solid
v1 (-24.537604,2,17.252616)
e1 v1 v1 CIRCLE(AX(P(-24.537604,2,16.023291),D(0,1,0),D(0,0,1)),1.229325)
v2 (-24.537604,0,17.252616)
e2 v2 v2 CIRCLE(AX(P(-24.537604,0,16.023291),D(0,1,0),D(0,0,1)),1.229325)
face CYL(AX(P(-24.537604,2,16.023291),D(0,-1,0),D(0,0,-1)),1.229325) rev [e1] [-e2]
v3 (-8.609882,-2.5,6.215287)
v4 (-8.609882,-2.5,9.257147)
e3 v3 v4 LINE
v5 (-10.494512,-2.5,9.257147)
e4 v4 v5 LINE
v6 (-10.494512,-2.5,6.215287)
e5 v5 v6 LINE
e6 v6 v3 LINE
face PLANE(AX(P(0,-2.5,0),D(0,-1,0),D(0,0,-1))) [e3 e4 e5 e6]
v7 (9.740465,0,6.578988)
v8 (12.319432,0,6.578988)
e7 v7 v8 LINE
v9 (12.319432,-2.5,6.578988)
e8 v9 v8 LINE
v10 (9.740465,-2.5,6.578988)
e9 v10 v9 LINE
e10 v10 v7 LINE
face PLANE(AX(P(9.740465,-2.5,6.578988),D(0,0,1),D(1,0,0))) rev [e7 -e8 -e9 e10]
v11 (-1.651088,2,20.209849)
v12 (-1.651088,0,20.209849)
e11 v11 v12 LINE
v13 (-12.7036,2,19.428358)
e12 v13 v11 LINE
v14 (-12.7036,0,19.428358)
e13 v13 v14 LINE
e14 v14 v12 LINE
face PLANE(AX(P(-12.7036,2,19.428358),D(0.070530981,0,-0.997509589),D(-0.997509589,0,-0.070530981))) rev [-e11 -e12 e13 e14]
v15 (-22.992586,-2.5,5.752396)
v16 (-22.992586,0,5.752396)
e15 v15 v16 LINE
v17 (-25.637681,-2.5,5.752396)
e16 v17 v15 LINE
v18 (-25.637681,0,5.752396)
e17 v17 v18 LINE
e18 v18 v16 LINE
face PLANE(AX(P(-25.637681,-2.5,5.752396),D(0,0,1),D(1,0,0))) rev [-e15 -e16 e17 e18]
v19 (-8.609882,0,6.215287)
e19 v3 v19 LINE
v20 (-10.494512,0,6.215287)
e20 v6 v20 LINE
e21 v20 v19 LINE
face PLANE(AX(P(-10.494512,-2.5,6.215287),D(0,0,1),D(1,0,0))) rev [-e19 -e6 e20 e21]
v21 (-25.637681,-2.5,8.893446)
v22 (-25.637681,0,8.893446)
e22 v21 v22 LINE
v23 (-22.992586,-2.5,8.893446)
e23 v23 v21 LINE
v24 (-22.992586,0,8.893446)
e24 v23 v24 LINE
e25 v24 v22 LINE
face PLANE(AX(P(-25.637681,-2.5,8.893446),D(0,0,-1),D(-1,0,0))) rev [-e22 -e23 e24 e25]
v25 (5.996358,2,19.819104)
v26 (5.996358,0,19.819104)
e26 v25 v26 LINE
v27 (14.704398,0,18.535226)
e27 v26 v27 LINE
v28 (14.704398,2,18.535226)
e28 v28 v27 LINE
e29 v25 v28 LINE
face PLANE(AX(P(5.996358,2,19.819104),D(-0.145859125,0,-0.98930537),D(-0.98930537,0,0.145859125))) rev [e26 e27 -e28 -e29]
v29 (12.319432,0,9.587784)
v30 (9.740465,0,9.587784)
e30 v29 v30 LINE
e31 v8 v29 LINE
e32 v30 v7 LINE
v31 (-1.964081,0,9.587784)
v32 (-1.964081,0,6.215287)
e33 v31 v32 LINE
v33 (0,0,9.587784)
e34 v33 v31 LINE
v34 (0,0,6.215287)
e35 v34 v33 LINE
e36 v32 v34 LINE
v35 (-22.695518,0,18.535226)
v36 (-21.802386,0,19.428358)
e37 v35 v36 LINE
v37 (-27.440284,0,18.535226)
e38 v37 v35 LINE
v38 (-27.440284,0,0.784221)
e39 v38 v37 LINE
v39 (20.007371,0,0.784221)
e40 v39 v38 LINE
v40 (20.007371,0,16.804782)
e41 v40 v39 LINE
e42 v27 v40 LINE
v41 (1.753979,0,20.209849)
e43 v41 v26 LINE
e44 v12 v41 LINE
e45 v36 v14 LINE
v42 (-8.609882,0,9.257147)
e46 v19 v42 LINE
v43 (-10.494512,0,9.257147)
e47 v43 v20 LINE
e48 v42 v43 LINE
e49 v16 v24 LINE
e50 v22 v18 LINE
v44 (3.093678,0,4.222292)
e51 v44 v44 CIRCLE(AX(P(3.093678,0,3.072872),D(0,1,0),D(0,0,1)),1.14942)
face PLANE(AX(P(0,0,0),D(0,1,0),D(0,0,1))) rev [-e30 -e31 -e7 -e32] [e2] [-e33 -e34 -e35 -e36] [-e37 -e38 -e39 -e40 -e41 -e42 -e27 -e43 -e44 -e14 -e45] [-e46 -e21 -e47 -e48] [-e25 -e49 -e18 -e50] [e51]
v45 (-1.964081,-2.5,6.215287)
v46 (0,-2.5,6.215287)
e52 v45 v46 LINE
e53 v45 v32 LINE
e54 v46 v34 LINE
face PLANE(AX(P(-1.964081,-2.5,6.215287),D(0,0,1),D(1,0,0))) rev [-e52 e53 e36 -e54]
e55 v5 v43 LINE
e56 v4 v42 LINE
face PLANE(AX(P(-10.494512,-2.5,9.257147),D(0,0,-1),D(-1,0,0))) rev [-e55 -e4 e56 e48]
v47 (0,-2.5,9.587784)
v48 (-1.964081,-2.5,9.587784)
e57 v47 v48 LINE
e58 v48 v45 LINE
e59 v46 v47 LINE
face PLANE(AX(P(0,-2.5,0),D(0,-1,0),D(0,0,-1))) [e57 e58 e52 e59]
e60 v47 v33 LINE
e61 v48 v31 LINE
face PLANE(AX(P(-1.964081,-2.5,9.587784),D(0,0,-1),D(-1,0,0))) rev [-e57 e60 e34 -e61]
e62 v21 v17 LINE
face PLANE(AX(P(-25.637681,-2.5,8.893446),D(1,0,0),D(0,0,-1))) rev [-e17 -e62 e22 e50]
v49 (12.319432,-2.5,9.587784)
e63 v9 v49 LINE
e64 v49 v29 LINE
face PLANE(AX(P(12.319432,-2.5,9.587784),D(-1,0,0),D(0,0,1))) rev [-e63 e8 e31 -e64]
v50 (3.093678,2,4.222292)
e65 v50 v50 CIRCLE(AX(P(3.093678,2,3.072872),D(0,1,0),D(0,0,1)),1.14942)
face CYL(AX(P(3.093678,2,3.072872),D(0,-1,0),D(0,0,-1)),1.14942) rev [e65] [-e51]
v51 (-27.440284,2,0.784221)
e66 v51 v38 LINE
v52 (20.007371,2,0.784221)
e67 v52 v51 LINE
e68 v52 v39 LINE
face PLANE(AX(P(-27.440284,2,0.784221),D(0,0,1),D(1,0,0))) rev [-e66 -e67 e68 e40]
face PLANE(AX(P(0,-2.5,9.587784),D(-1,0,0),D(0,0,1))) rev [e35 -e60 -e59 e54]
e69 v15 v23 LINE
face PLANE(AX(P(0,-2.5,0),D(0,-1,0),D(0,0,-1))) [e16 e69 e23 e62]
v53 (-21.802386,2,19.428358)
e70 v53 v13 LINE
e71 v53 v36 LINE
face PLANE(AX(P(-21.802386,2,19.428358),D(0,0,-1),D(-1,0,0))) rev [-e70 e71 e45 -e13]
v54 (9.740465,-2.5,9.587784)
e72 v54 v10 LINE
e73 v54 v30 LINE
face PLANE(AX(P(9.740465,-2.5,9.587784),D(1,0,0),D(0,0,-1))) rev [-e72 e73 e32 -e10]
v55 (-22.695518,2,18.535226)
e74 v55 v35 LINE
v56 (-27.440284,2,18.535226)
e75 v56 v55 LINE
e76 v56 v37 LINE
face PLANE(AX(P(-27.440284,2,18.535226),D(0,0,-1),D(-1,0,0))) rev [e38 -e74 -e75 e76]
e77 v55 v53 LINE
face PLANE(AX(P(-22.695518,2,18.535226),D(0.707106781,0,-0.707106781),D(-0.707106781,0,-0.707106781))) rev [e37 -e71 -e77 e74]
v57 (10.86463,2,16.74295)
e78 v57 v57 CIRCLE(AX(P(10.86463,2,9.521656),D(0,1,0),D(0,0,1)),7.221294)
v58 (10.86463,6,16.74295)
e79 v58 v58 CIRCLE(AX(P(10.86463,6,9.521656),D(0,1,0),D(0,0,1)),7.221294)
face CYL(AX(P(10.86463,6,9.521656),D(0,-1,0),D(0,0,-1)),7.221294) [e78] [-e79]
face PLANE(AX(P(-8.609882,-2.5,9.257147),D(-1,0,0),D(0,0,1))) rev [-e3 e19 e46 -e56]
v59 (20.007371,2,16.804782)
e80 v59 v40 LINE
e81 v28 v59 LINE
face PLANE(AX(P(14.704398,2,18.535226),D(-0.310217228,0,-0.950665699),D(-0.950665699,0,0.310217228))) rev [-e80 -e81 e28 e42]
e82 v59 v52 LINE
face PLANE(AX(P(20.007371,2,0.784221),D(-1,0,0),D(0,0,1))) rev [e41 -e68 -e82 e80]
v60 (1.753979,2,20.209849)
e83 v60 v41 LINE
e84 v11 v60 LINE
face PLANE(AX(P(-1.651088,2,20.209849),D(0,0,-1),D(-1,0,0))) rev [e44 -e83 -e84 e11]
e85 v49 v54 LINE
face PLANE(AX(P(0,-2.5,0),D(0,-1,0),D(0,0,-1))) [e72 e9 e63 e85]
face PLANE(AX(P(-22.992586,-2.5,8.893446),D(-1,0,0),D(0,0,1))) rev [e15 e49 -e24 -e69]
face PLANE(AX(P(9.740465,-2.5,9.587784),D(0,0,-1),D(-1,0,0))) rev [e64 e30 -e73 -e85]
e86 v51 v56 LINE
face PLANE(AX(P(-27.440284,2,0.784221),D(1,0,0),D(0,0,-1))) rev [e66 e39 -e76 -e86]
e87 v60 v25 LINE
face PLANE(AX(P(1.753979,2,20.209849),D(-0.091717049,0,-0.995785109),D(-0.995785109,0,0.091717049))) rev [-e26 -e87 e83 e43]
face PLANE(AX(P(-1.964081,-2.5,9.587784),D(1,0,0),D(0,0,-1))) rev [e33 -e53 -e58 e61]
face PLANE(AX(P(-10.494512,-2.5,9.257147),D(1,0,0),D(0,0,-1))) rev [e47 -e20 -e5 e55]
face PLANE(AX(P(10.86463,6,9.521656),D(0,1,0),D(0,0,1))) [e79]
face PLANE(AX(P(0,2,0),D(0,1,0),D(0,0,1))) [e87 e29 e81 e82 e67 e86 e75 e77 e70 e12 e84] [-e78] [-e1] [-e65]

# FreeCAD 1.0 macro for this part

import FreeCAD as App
import Part
import Sketcher
Q = App.Units.Quantity

doc = App.newDocument("Part")
body = doc.addObject("PartDesign::Body", "Body")

# Sketch on XZ plane
sketch1 = body.newObject("Sketcher::SketchObject", "Sketch")
sketch1.AttachmentSupport = (doc.getObject("XZ_Plane"), [""])
sketch1.MapMode = "FlatFace"
sketch1.addGeometry([
    Part.LineSegment(App.Vector(20, 0.8, 0), App.Vector(-27.4, 0.8, 0)),  # 0
    Part.LineSegment(App.Vector(-27.4, 0.8, 0), App.Vector(-27.4, 18.5, 0)),  # 1
    Part.LineSegment(App.Vector(-27.4, 18.5, 0), App.Vector(-22.7, 18.5, 0)),  # 2
    Part.LineSegment(App.Vector(-22.7, 18.5, 0), App.Vector(-21.8, 19.4, 0)),  # 3
    Part.LineSegment(App.Vector(-21.8, 19.4, 0), App.Vector(-12.7, 19.4, 0)),  # 4
    Part.LineSegment(App.Vector(-12.7, 19.4, 0), App.Vector(-1.7, 20.2, 0)),  # 5
    Part.LineSegment(App.Vector(-1.7, 20.2, 0), App.Vector(1.8, 20.2, 0)),  # 6
    Part.LineSegment(App.Vector(1.8, 20.2, 0), App.Vector(6, 19.8, 0)),  # 7
    Part.LineSegment(App.Vector(6, 19.8, 0), App.Vector(14.7, 18.5, 0)),  # 8
    Part.LineSegment(App.Vector(14.7, 18.5, 0), App.Vector(20, 16.8, 0)),  # 9
    Part.LineSegment(App.Vector(20, 16.8, 0), App.Vector(20, 0.8, 0)),  # 10
    Part.Circle(App.Vector(-24.5, 16, 0), App.Vector(0, 0, 1), 1.2),  # 11
    Part.Circle(App.Vector(3.1, 3.1, 0), App.Vector(0, 0, 1), 1.1),  # 12
], False)
sketch1.addConstraint([
    Sketcher.Constraint("Coincident", 0, 2, 1, 1),
    Sketcher.Constraint("Coincident", 1, 2, 2, 1),
    Sketcher.Constraint("Coincident", 2, 2, 3, 1),
    Sketcher.Constraint("Coincident", 3, 2, 4, 1),
    Sketcher.Constraint("Coincident", 4, 2, 5, 1),
    Sketcher.Constraint("Coincident", 5, 2, 6, 1),
    Sketcher.Constraint("Coincident", 6, 2, 7, 1),
    Sketcher.Constraint("Coincident", 7, 2, 8, 1),
    Sketcher.Constraint("Coincident", 8, 2, 9, 1),
    Sketcher.Constraint("Coincident", 9, 2, 10, 1),
    Sketcher.Constraint("Coincident", 10, 2, 0, 1),
    Sketcher.Constraint("Horizontal", 0),
    Sketcher.Constraint("Vertical", 1),
    Sketcher.Constraint("Horizontal", 2),
    Sketcher.Constraint("Horizontal", 4),
    Sketcher.Constraint("Horizontal", 6),
    Sketcher.Constraint("Vertical", 10),
    Sketcher.Constraint("Horizontal", 2, 2, 8, 2),
    Sketcher.Constraint("Angle", 3, Q("45 deg")),
    Sketcher.Constraint("Diameter", 11, Q("2.45865 mm")),
    Sketcher.Constraint("Diameter", 12, Q("2.29884 mm")),
    Sketcher.Constraint("DistanceX", 4, 2, 8, 2, Q("27.407999 mm")),
    Sketcher.Constraint("DistanceY", 10, 2, 10, 1, Q("16.020561 mm")),
    Sketcher.Constraint("DistanceX", 4, 2, -1, 1, Q("12.7036 mm")),
    Sketcher.Constraint("DistanceX", 3, 2, 5, 2, Q("20.151298 mm")),
    Sketcher.Constraint("DistanceX", 6, 2, 12, 3, Q("1.339699 mm")),
    Sketcher.Constraint("Distance", 3, Q("1.26308 mm")),
    Sketcher.Constraint("Distance", 9, Q("5.578168 mm")),
    Sketcher.Constraint("DistanceX", 0, 2, 0, 1, Q("47.447655 mm")),
    Sketcher.Constraint("DistanceX", 2, 1, 2, 2, Q("4.744766 mm")),
    Sketcher.Constraint("DistanceX", 4, 1, 4, 2, Q("9.098786 mm")),
    Sketcher.Constraint("DistanceX", 6, 1, 6, 2, Q("3.405067 mm")),
    Sketcher.Constraint("DistanceY", -1, 1, 11, 3, Q("16.023291 mm")),
    Sketcher.Constraint("DistanceY", -1, 1, 0, 2, Q("0.784221 mm")),
    Sketcher.Constraint("DistanceY", -1, 1, 5, 2, Q("20.209849 mm")),
    Sketcher.Constraint("DistanceX", 11, 3, 12, 3, Q("27.631282 mm")),
    Sketcher.Constraint("DistanceY", 12, 3, 11, 3, Q("12.950419 mm")),
    Sketcher.Constraint("DistanceX", 6, 2, 7, 2, Q("4.242379 mm")),
    Sketcher.Constraint("DistanceY", 12, 3, 7, 2, Q("16.746231 mm")),
])
pad1 = body.newObject("PartDesign::Pad", "Pad")
pad1.Profile = sketch1
pad1.Length = 2
pad1.Reversed = True

# Sketch on XZ plane
sketch2 = body.newObject("Sketcher::SketchObject", "Sketch001")
sketch2.AttachmentSupport = (doc.getObject("XZ_Plane"), [""])
sketch2.MapMode = "FlatFace"
sketch2.AttachmentOffset = App.Placement(App.Vector(0, 0, -2), App.Rotation())
sketch2.addGeometry(Part.Circle(App.Vector(11, 10, 0), App.Vector(0, 0, 1), 7), False)
sketch2.addConstraint([
    Sketcher.Constraint("Diameter", 0, Q("14.442588 mm")),
    Sketcher.Constraint("DistanceX", -1, 1, 0, 3, Q("10.86463 mm")),
    Sketcher.Constraint("DistanceY", -1, 1, 0, 3, Q("9.521656 mm")),
])
pad2 = body.newObject("PartDesign::Pad", "Pad001")
pad2.Profile = sketch2
pad2.Length = 4
pad2.Reversed = True

# Sketch on XZ plane
sketch3 = body.newObject("Sketcher::SketchObject", "Sketch002")
sketch3.AttachmentSupport = (doc.getObject("XZ_Plane"), [""])
sketch3.MapMode = "FlatFace"
sketch3.addGeometry([
    Part.LineSegment(App.Vector(-23, 5.8, 0), App.Vector(-23, 8.9, 0)),  # 0
    Part.LineSegment(App.Vector(-23, 8.9, 0), App.Vector(-25.6, 8.9, 0)),  # 1
    Part.LineSegment(App.Vector(-25.6, 8.9, 0), App.Vector(-25.6, 5.8, 0)),  # 2
    Part.LineSegment(App.Vector(-25.6, 5.8, 0), App.Vector(-23, 5.8, 0)),  # 3
    Part.LineSegment(App.Vector(-8.6, 6.2, 0), App.Vector(-8.6, 9.3, 0)),  # 4
    Part.LineSegment(App.Vector(-8.6, 9.3, 0), App.Vector(-10.5, 9.3, 0)),  # 5
    Part.LineSegment(App.Vector(-10.5, 9.3, 0), App.Vector(-10.5, 6.2, 0)),  # 6
    Part.LineSegment(App.Vector(-10.5, 6.2, 0), App.Vector(-8.6, 6.2, 0)),  # 7
    Part.LineSegment(App.Vector(0, 6.2, 0), App.Vector(0, 9.6, 0)),  # 8
    Part.LineSegment(App.Vector(0, 9.6, 0), App.Vector(-2, 9.6, 0)),  # 9
    Part.LineSegment(App.Vector(-2, 9.6, 0), App.Vector(-2, 6.2, 0)),  # 10
    Part.LineSegment(App.Vector(-2, 6.2, 0), App.Vector(0, 6.2, 0)),  # 11
    Part.LineSegment(App.Vector(12.3, 6.6, 0), App.Vector(12.3, 9.6, 0)),  # 12
    Part.LineSegment(App.Vector(12.3, 9.6, 0), App.Vector(9.7, 9.6, 0)),  # 13
    Part.LineSegment(App.Vector(9.7, 9.6, 0), App.Vector(9.7, 6.6, 0)),  # 14
    Part.LineSegment(App.Vector(9.7, 6.6, 0), App.Vector(12.3, 6.6, 0)),  # 15
], False)
sketch3.addConstraint([
    Sketcher.Constraint("Coincident", 0, 2, 1, 1),
    Sketcher.Constraint("Coincident", 1, 2, 2, 1),
    Sketcher.Constraint("Coincident", 2, 2, 3, 1),
    Sketcher.Constraint("Coincident", 3, 2, 0, 1),
    Sketcher.Constraint("Coincident", 4, 2, 5, 1),
    Sketcher.Constraint("Coincident", 5, 2, 6, 1),
    Sketcher.Constraint("Coincident", 6, 2, 7, 1),
    Sketcher.Constraint("Coincident", 7, 2, 4, 1),
    Sketcher.Constraint("Coincident", 8, 2, 9, 1),
    Sketcher.Constraint("Coincident", 9, 2, 10, 1),
    Sketcher.Constraint("Coincident", 10, 2, 11, 1),
    Sketcher.Constraint("Coincident", 11, 2, 8, 1),
    Sketcher.Constraint("Coincident", 12, 2, 13, 1),
    Sketcher.Constraint("Coincident", 13, 2, 14, 1),
    Sketcher.Constraint("Coincident", 14, 2, 15, 1),
    Sketcher.Constraint("Coincident", 15, 2, 12, 1),
    Sketcher.Constraint("Vertical", 0),
    Sketcher.Constraint("Horizontal", 1),
    Sketcher.Constraint("Vertical", 2),
    Sketcher.Constraint("Horizontal", 3),
    Sketcher.Constraint("Vertical", 4),
    Sketcher.Constraint("Horizontal", 5),
    Sketcher.Constraint("Vertical", 6),
    Sketcher.Constraint("Horizontal", 7),
    Sketcher.Constraint("Vertical", 8),
    Sketcher.Constraint("Horizontal", 9),
    Sketcher.Constraint("Vertical", 10),
    Sketcher.Constraint("Horizontal", 11),
    Sketcher.Constraint("Vertical", 12),
    Sketcher.Constraint("Horizontal", 13),
    Sketcher.Constraint("Vertical", 14),
    Sketcher.Constraint("Horizontal", 15),
    Sketcher.Constraint("PointOnObject", 8, 2, -2),
    Sketcher.Constraint("Horizontal", 7, 2, 10, 2),
    Sketcher.Constraint("Horizontal", 9, 2, 12, 2),
    Sketcher.Constraint("DistanceX", 5, 2, 5, 1, Q("1.88463 mm")),
    Sketcher.Constraint("DistanceX", 9, 2, 9, 1, Q("1.964081 mm")),
    Sketcher.Constraint("DistanceY", 0, 1, 0, 2, Q("3.14105 mm")),
    Sketcher.Constraint("DistanceY", 4, 1, 4, 2, Q("3.041859 mm")),
    Sketcher.Constraint("DistanceY", 0, 2, 4, 2, Q("0.363701 mm")),
    Sketcher.Constraint("DistanceX", 1, 2, 4, 2, Q("17.027799 mm")),
    Sketcher.Constraint("DistanceX", 4, 2, 9, 2, Q("6.645801 mm")),
    Sketcher.Constraint("DistanceY", 11, 2, 14, 2, Q("0.363701 mm")),
    Sketcher.Constraint("DistanceX", 1, 2, 1, 1, Q("2.645095 mm")),
    Sketcher.Constraint("DistanceX", 13, 2, 13, 1, Q("2.578968 mm")),
    Sketcher.Constraint("DistanceY", 8, 1, 8, 2, Q("3.372496 mm")),
    Sketcher.Constraint("DistanceY", -1, 1, 0, 2, Q("8.893446 mm")),
    Sketcher.Constraint("DistanceX", -1, 1, 12, 2, Q("12.319432 mm")),
])
pad3 = body.newObject("PartDesign::Pad", "Pad002")
pad3.Profile = sketch3
pad3.Length = 2.5

doc.recompute()
